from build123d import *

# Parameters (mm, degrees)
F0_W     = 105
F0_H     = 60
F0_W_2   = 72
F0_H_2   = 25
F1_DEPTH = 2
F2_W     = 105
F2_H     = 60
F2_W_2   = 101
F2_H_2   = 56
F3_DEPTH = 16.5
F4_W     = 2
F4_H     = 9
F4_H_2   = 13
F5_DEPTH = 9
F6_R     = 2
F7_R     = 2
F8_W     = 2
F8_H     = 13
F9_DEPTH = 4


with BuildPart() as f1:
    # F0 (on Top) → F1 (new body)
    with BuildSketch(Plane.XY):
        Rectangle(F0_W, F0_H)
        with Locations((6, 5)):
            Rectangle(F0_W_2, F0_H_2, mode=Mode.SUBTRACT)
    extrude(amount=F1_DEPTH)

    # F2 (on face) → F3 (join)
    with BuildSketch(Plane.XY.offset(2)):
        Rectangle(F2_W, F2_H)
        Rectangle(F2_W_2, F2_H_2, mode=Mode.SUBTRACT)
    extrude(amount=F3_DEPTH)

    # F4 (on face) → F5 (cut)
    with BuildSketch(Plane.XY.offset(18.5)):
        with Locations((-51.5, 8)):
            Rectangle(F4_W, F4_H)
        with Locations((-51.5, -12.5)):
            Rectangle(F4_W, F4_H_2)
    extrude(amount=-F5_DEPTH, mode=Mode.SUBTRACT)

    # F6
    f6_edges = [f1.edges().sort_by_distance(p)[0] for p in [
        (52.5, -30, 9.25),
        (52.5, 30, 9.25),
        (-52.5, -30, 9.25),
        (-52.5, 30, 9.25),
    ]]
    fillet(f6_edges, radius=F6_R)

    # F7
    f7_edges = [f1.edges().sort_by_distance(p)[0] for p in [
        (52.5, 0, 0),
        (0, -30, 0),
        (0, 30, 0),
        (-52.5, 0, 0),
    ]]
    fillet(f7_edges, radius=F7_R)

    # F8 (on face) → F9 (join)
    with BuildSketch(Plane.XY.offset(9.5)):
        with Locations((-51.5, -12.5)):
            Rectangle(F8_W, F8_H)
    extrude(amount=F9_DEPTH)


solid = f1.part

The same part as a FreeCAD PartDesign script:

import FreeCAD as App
import Part
import Sketcher
from FreeCAD import Vector
Q = App.Units.Quantity


def edges_at(feature, points):
    """Names of the edges that pass closest to the given points."""
    edges = feature.Shape.Edges
    near = lambda p: min(range(len(edges)), key=lambda i: edges[i].distToShape(Part.Vertex(*p))[0])
    return sorted({f"Edge{near(p) + 1}" for p in points})


def add_polygon(sketch, points):
    """Adds a closed chain of lines whose ends are joined by coincident constraints."""
    first, n = sketch.GeometryCount, len(points)
    for a, b in zip(points, points[1:] + points[:1]):
        sketch.addGeometry(Part.LineSegment(App.Vector(*a, 0), App.Vector(*b, 0)), False)
    for i in range(n):
        sketch.addConstraint(Sketcher.Constraint("Coincident", first + i, 2, first + (i + 1) % n, 1))

doc = App.newDocument("Part")
body = doc.addObject("PartDesign::Body", "Body")

# Sketch on XY plane
sketch1 = doc.addObject("Sketcher::SketchObject", "Sketch")
body.addObject(sketch1)
sketch1.AttachmentSupport = (doc.XY_Plane, [""])
sketch1.MapMode = "FlatFace"
add_polygon(sketch1, [(-52, 30), (-52, -30), (52, -30), (52, 30)])  # lines 0-3
add_polygon(sketch1, [(42, -8), (-30, -8), (-30, 18), (42, 18)])  # lines 4-7
sketch1.addConstraint([
    Sketcher.Constraint("Vertical", 0),
    Sketcher.Constraint("Horizontal", 1),
    Sketcher.Constraint("Vertical", 2),
    Sketcher.Constraint("Horizontal", 3),
    Sketcher.Constraint("Horizontal", 4),
    Sketcher.Constraint("Vertical", 5),
    Sketcher.Constraint("Horizontal", 6),
    Sketcher.Constraint("Vertical", 7),
    Sketcher.Constraint("Symmetric", 0, 2, 2, 2, -1, 1),
    Sketcher.Constraint("DistanceX", 1, 1, 1, 2, Q("105 mm")),
    Sketcher.Constraint("DistanceX", 4, 2, 4, 1, Q("72 mm")),
    Sketcher.Constraint("DistanceY", 0, 2, 0, 1, Q("60 mm")),
    Sketcher.Constraint("DistanceY", 5, 1, 5, 2, Q("25 mm")),
    Sketcher.Constraint("DistanceX", 4, 2, -1, 1, Q("30 mm")),
    Sketcher.Constraint("DistanceY", 4, 2, -1, 1, Q("7.5 mm")),
])
pad1 = doc.addObject("PartDesign::Pad", "Pad")
body.addObject(pad1)
pad1.Profile = sketch1
pad1.Length = 2

# Sketch on XY plane
sketch2 = doc.addObject("Sketcher::SketchObject", "Sketch001")
body.addObject(sketch2)
sketch2.AttachmentSupport = (doc.XY_Plane, [""])
sketch2.MapMode = "FlatFace"
sketch2.AttachmentOffset = App.Placement(Vector(0, 0, 2), App.Rotation())
add_polygon(sketch2, [(-52, 30), (-52, -30), (52, -30), (52, 30)])  # lines 0-3
add_polygon(sketch2, [(50, -28), (-50, -28), (-50, 28), (50, 28)])  # lines 4-7
sketch2.addConstraint([
    Sketcher.Constraint("Vertical", 0),
    Sketcher.Constraint("Horizontal", 1),
    Sketcher.Constraint("Vertical", 2),
    Sketcher.Constraint("Horizontal", 3),
    Sketcher.Constraint("Horizontal", 4),
    Sketcher.Constraint("Vertical", 5),
    Sketcher.Constraint("Horizontal", 6),
    Sketcher.Constraint("Vertical", 7),
    Sketcher.Constraint("Symmetric", 0, 2, 2, 2, -1, 1),
    Sketcher.Constraint("Symmetric", 4, 2, 6, 2, -1, 1),
    Sketcher.Constraint("DistanceX", 1, 1, 1, 2, Q("105 mm")),
    Sketcher.Constraint("DistanceX", 4, 2, 4, 1, Q("101 mm")),
    Sketcher.Constraint("DistanceY", 0, 2, 0, 1, Q("60 mm")),
    Sketcher.Constraint("DistanceY", 5, 1, 5, 2, Q("56 mm")),
])
pad2 = doc.addObject("PartDesign::Pad", "Pad001")
body.addObject(pad2)
pad2.Profile = sketch2
pad2.Length = 16.5

# Sketch on XY plane
sketch3 = doc.addObject("Sketcher::SketchObject", "Sketch002")
body.addObject(sketch3)
sketch3.AttachmentSupport = (doc.XY_Plane, [""])
sketch3.MapMode = "FlatFace"
sketch3.AttachmentOffset = App.Placement(Vector(0, 0, 18.5), App.Rotation())
add_polygon(sketch3, [(-52.5, 12.5), (-52.5, 3.5), (-50.5, 3.5), (-50.5, 12.5)])  # lines 0-3
add_polygon(sketch3, [(-52.5, -6), (-52.5, -19), (-50.5, -19), (-50.5, -6)])  # lines 4-7
sketch3.addConstraint([
    Sketcher.Constraint("Vertical", 0),
    Sketcher.Constraint("Horizontal", 1),
    Sketcher.Constraint("Vertical", 2),
    Sketcher.Constraint("Horizontal", 3),
    Sketcher.Constraint("Vertical", 4),
    Sketcher.Constraint("Horizontal", 5),
    Sketcher.Constraint("Vertical", 6),
    Sketcher.Constraint("Horizontal", 7),
    Sketcher.Constraint("Vertical", 3, 2, 4, 2),
    Sketcher.Constraint("Vertical", 2, 2, 5, 2),
    Sketcher.Constraint("DistanceX", 1, 1, 1, 2, Q("2 mm")),
    Sketcher.Constraint("DistanceY", 0, 2, 0, 1, Q("9 mm")),
    Sketcher.Constraint("DistanceY", 4, 2, 4, 1, Q("13 mm")),
    Sketcher.Constraint("DistanceY", 4, 2, -1, 1, Q("19 mm")),
    Sketcher.Constraint("DistanceX", 0, 2, -1, 1, Q("52.5 mm")),
    Sketcher.Constraint("DistanceY", -1, 1, 0, 2, Q("3.5 mm")),
])
pocket1 = doc.addObject("PartDesign::Pocket", "Pocket")
body.addObject(pocket1)
pocket1.Profile = sketch3
pocket1.Length = 9
doc.recompute()

fillet = doc.addObject("PartDesign::Fillet", "Fillet")
body.addObject(fillet)
fillet.Base = (pocket1, edges_at(pocket1, [
    (52.5, -30, 9.25),
    (52.5, 30, 9.25),
    (-52.5, -30, 9.25),
    (-52.5, 30, 9.25),
]))
fillet.Radius = 2
doc.recompute()

fillet2 = doc.addObject("PartDesign::Fillet", "Fillet001")
body.addObject(fillet2)
fillet2.Base = (fillet, edges_at(fillet, [
    (52.5, 0, 0),
    (0, -30, 0),
    (0, 30, 0),
    (-52.5, 0, 0),
]))
fillet2.Radius = 2

# Sketch on XY plane
sketch4 = doc.addObject("Sketcher::SketchObject", "Sketch003")
body.addObject(sketch4)
sketch4.AttachmentSupport = (doc.XY_Plane, [""])
sketch4.MapMode = "FlatFace"
sketch4.AttachmentOffset = App.Placement(Vector(0, 0, 9.5), App.Rotation())
add_polygon(sketch4, [(-52.5, -6), (-52.5, -19), (-50.5, -19), (-50.5, -6)])  # lines 0-3
sketch4.addConstraint([
    Sketcher.Constraint("Vertical", 0),
    Sketcher.Constraint("Horizontal", 1),
    Sketcher.Constraint("Vertical", 2),
    Sketcher.Constraint("Horizontal", 3),
    Sketcher.Constraint("DistanceX", 1, 1, 1, 2, Q("2 mm")),
    Sketcher.Constraint("DistanceY", 0, 2, 0, 1, Q("13 mm")),
    Sketcher.Constraint("DistanceY", 0, 2, -1, 1, Q("19 mm")),
    Sketcher.Constraint("DistanceX", 0, 2, -1, 1, Q("52.5 mm")),
])
pad3 = doc.addObject("PartDesign::Pad", "Pad002")
body.addObject(pad3)
pad3.Profile = sketch4
pad3.Length = 4

doc.recompute()
